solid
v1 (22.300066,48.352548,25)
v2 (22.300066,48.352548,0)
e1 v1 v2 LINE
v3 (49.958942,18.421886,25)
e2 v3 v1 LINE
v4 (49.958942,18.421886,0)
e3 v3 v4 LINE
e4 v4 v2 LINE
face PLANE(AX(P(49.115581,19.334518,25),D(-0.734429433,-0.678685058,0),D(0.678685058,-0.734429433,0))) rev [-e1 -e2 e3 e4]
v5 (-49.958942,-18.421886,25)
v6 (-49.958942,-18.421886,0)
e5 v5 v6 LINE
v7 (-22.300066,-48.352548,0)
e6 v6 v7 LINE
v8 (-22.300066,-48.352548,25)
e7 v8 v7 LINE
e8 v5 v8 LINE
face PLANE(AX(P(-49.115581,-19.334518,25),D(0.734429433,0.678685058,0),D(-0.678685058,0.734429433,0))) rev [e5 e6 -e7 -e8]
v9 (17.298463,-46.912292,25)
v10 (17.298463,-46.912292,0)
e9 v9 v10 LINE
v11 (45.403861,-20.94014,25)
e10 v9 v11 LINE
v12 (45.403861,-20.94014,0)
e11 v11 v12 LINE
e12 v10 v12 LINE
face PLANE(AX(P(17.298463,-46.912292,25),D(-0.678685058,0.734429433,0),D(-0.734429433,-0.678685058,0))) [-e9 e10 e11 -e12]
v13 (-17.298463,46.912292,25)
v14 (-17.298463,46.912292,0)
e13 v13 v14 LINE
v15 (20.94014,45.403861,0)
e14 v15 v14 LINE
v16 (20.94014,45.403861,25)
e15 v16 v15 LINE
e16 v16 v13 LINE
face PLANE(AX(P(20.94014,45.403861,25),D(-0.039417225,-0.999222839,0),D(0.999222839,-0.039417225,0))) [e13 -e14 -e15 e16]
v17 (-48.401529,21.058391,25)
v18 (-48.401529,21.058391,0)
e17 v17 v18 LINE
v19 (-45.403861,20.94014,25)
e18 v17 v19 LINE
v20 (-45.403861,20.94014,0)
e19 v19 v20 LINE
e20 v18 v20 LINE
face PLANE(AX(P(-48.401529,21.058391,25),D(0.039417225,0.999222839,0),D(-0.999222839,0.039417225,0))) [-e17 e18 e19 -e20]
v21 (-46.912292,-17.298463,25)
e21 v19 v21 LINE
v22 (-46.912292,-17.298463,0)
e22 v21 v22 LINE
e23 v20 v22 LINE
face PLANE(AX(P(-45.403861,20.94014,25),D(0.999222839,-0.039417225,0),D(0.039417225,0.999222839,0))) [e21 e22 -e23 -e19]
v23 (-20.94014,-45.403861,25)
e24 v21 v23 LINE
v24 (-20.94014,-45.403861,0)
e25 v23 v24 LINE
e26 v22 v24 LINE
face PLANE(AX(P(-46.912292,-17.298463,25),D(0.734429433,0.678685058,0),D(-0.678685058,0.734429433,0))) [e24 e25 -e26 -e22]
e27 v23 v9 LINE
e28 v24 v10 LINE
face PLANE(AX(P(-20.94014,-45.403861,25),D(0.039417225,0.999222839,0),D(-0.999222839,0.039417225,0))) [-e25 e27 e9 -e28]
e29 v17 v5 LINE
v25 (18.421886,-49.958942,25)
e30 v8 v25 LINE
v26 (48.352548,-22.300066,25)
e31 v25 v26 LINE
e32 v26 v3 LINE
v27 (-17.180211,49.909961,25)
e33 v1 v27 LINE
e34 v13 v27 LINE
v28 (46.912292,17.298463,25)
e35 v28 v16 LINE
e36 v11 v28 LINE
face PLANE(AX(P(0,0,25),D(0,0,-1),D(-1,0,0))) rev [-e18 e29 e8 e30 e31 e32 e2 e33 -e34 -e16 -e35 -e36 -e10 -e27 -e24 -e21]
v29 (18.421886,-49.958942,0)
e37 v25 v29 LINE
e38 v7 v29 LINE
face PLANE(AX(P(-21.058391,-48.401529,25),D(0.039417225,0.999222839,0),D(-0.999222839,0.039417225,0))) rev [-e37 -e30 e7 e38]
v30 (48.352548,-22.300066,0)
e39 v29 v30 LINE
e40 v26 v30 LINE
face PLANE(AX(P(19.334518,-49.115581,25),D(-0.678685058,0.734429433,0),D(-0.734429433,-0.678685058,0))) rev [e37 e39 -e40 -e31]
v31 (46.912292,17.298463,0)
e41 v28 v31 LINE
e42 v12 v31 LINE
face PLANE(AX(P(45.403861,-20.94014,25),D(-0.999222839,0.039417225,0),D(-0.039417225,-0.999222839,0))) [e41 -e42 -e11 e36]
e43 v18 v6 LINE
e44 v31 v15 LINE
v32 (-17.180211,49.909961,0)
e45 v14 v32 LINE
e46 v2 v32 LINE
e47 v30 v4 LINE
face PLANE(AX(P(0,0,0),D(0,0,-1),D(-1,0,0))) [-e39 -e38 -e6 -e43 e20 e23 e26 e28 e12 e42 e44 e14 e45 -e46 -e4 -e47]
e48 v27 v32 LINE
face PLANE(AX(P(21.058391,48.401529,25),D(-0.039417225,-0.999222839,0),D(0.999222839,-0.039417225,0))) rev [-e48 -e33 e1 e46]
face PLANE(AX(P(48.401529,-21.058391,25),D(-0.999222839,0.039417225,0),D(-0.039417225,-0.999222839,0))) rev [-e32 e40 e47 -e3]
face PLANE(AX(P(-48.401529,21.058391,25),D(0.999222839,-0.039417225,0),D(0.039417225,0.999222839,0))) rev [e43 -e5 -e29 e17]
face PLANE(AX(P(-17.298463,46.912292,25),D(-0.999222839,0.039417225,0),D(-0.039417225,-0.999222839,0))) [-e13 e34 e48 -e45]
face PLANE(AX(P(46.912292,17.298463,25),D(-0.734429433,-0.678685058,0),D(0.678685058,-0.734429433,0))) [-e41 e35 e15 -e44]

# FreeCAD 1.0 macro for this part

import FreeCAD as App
import Part
import Sketcher
from FreeCAD import Vector

doc = App.newDocument("Part")
body = doc.addObject("PartDesign::Body", "Body")

# Sketch on XY plane
sketch1 = body.newObject("Sketcher::SketchObject", "Sketch")
sketch1.AttachmentSupport = (doc.getObject("XY_Plane"), [""])
sketch1.MapMode = "FlatFace"
sketch1.addGeometry(Part.LineSegment(Vector(-46.9, -17.3, 0), Vector(-45.4, 20.9, 0)), False)
sketch1.addGeometry(Part.LineSegment(Vector(-45.4, 20.9, 0), Vector(-48.4, 21.1, 0)), False)
sketch1.addGeometry(Part.LineSegment(Vector(-48.4, 21.1, 0), Vector(-50, -18.4, 0)), False)
sketch1.addGeometry(Part.LineSegment(Vector(-50, -18.4, 0), Vector(-22.3, -48.4, 0)), False)
sketch1.addGeometry(Part.LineSegment(Vector(-22.3, -48.4, 0), Vector(18.4, -50, 0)), False)
sketch1.addGeometry(Part.LineSegment(Vector(18.4, -50, 0), Vector(48.4, -22.3, 0)), False)
sketch1.addGeometry(Part.LineSegment(Vector(48.4, -22.3, 0), Vector(50, 18.4, 0)), False)
sketch1.addGeometry(Part.LineSegment(Vector(50, 18.4, 0), Vector(22.3, 48.4, 0)), False)
sketch1.addGeometry(Part.LineSegment(Vector(22.3, 48.4, 0), Vector(-17.2, 49.9, 0)), False)
sketch1.addGeometry(Part.LineSegment(Vector(-17.2, 49.9, 0), Vector(-17.3, 46.9, 0)), False)
sketch1.addGeometry(Part.LineSegment(Vector(-17.3, 46.9, 0), Vector(20.9, 45.4, 0)), False)
sketch1.addGeometry(Part.LineSegment(Vector(20.9, 45.4, 0), Vector(46.9, 17.3, 0)), False)
sketch1.addGeometry(Part.LineSegment(Vector(46.9, 17.3, 0), Vector(45.4, -20.9, 0)), False)
sketch1.addGeometry(Part.LineSegment(Vector(45.4, -20.9, 0), Vector(17.3, -46.9, 0)), False)
sketch1.addGeometry(Part.LineSegment(Vector(17.3, -46.9, 0), Vector(-20.9, -45.4, 0)), False)
sketch1.addGeometry(Part.LineSegment(Vector(-20.9, -45.4, 0), Vector(-46.9, -17.3, 0)), False)
sketch1.addConstraint(Sketcher.Constraint("Coincident", 0, 2, 1, 1))
sketch1.addConstraint(Sketcher.Constraint("Coincident", 1, 2, 2, 1))
sketch1.addConstraint(Sketcher.Constraint("Coincident", 2, 2, 3, 1))
sketch1.addConstraint(Sketcher.Constraint("Coincident", 3, 2, 4, 1))
sketch1.addConstraint(Sketcher.Constraint("Coincident", 4, 2, 5, 1))
sketch1.addConstraint(Sketcher.Constraint("Coincident", 5, 2, 6, 1))
sketch1.addConstraint(Sketcher.Constraint("Coincident", 6, 2, 7, 1))
sketch1.addConstraint(Sketcher.Constraint("Coincident", 7, 2, 8, 1))
sketch1.addConstraint(Sketcher.Constraint("Coincident", 8, 2, 9, 1))
sketch1.addConstraint(Sketcher.Constraint("Coincident", 9, 2, 10, 1))
sketch1.addConstraint(Sketcher.Constraint("Coincident", 10, 2, 11, 1))
sketch1.addConstraint(Sketcher.Constraint("Coincident", 11, 2, 12, 1))
sketch1.addConstraint(Sketcher.Constraint("Coincident", 12, 2, 13, 1))
sketch1.addConstraint(Sketcher.Constraint("Coincident", 13, 2, 14, 1))
sketch1.addConstraint(Sketcher.Constraint("Coincident", 14, 2, 15, 1))
sketch1.addConstraint(Sketcher.Constraint("Coincident", 15, 2, 0, 1))
sketch1.addConstraint(Sketcher.Constraint("Symmetric", 2, 2, 6, 2, -1, 1))
sketch1.addConstraint(Sketcher.Constraint("Symmetric", 3, 2, 7, 2, -1, 1))
sketch1.addConstraint(Sketcher.Constraint("Symmetric", 0, 2, 12, 2, -1, 1))
sketch1.addConstraint(Sketcher.Constraint("Symmetric", 9, 2, 13, 2, -1, 1))
sketch1.addConstraint(Sketcher.Constraint("Symmetric", 10, 2, 14, 2, -1, 1))
sketch1.addConstraint(Sketcher.Constraint("Symmetric", 11, 2, 15, 2, -1, 1))
sketch1.addConstraint(Sketcher.Constraint("Perpendicular", 0, 1))
sketch1.addConstraint(Sketcher.Constraint("Perpendicular", 1, 2))
sketch1.addConstraint(Sketcher.Constraint("Perpendicular", 2, 4))
sketch1.addConstraint(Sketcher.Constraint("Perpendicular", 3, 5))
sketch1.addConstraint(Sketcher.Constraint("Perpendicular", 4, 6))
sketch1.addConstraint(Sketcher.Constraint("Perpendicular", 6, 8))
sketch1.addConstraint(Sketcher.Constraint("Perpendicular", 8, 9))
sketch1.addConstraint(Sketcher.Constraint("Perpendicular", 9, 10))
sketch1.addConstraint(Sketcher.Constraint("Parallel", 7, 11))
sketch1.addConstraint(Sketcher.Constraint("Perpendicular", 11, 13))
sketch1.addConstraint(Sketcher.Constraint("Equal", 3, 4))
sketch1.addConstraint(Sketcher.Constraint("Equal", 4, 5))
sketch1.addConstraint(Sketcher.Constraint("Equal", 5, 6))
sketch1.addConstraint(Sketcher.Constraint("Equal", 2, 8))
sketch1.addConstraint(Sketcher.Constraint("Equal", 1, 9))
sketch1.addConstraint(Sketcher.Constraint("Equal", 10, 11))
sketch1.addConstraint(Sketcher.Constraint("Equal", 12, 13))
sketch1.addConstraint(Sketcher.Constraint("Distance", 1, 3.0))
sketch1.addConstraint(Sketcher.Constraint("DistanceX", 0, 2, 10, 2, 66.344))
sketch1.addConstraint(Sketcher.Constraint("DistanceY", 1, 2, 9, 2, 25.853901))
pad1 = body.newObject("PartDesign::Pad", "Pad")
pad1.Profile = sketch1
pad1.Length = 25

doc.recompute()
